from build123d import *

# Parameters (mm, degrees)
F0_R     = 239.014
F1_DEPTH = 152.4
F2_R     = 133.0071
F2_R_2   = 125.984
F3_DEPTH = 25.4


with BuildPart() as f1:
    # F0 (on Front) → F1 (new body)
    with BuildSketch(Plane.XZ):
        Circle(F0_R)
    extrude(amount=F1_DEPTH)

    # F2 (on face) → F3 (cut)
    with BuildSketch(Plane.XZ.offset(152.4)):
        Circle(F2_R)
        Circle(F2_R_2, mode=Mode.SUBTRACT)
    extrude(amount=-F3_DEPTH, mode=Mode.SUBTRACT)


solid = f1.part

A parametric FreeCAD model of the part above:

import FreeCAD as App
import Part
import Sketcher
from FreeCAD import Vector
Q = App.Units.Quantity

doc = App.newDocument("Part")
body = doc.addObject("PartDesign::Body", "Body")

# Sketch on XZ plane
sketch1 = doc.addObject("Sketcher::SketchObject", "Sketch")
body.addObject(sketch1)
sketch1.AttachmentSupport = (doc.XZ_Plane, [""])
sketch1.MapMode = "FlatFace"
sketch1.addGeometry(Part.Circle(Vector(0, 0, 0), Vector(0, 0, 1), 239), False)
sketch1.addConstraint([
    Sketcher.Constraint("Coincident", 0, 3, -1, 1),
    Sketcher.Constraint("Diameter", 0, Q("18.82 in")),
])
pad1 = doc.addObject("PartDesign::Pad", "Pad")
body.addObject(pad1)
pad1.Profile = sketch1
pad1.Length = Q("6 in")

# Sketch on XZ plane
sketch2 = doc.addObject("Sketcher::SketchObject", "Sketch001")
body.addObject(sketch2)
sketch2.AttachmentSupport = (doc.XZ_Plane, [""])
sketch2.MapMode = "FlatFace"
sketch2.AttachmentOffset = App.Placement(Vector(0, 0, 6 * 25.4), App.Rotation())
sketch2.addGeometry([
    Part.Circle(Vector(0, 0, 0), Vector(0, 0, 1), 133),
    Part.Circle(Vector(0, 0, 0), Vector(0, 0, 1), 126),
], False)
sketch2.addConstraint([
    Sketcher.Constraint("Coincident", 0, 3, -1, 1),
    Sketcher.Constraint("Coincident", 1, 3, -1, 1),
    Sketcher.Constraint("Diameter", 1, Q("9.92 in")),
    Sketcher.Constraint("Diameter", 0, Q("10.473 in")),
])
pocket1 = doc.addObject("PartDesign::Pocket", "Pocket")
body.addObject(pocket1)
pocket1.Profile = sketch2
pocket1.Length = Q("1 in")

doc.recompute()
